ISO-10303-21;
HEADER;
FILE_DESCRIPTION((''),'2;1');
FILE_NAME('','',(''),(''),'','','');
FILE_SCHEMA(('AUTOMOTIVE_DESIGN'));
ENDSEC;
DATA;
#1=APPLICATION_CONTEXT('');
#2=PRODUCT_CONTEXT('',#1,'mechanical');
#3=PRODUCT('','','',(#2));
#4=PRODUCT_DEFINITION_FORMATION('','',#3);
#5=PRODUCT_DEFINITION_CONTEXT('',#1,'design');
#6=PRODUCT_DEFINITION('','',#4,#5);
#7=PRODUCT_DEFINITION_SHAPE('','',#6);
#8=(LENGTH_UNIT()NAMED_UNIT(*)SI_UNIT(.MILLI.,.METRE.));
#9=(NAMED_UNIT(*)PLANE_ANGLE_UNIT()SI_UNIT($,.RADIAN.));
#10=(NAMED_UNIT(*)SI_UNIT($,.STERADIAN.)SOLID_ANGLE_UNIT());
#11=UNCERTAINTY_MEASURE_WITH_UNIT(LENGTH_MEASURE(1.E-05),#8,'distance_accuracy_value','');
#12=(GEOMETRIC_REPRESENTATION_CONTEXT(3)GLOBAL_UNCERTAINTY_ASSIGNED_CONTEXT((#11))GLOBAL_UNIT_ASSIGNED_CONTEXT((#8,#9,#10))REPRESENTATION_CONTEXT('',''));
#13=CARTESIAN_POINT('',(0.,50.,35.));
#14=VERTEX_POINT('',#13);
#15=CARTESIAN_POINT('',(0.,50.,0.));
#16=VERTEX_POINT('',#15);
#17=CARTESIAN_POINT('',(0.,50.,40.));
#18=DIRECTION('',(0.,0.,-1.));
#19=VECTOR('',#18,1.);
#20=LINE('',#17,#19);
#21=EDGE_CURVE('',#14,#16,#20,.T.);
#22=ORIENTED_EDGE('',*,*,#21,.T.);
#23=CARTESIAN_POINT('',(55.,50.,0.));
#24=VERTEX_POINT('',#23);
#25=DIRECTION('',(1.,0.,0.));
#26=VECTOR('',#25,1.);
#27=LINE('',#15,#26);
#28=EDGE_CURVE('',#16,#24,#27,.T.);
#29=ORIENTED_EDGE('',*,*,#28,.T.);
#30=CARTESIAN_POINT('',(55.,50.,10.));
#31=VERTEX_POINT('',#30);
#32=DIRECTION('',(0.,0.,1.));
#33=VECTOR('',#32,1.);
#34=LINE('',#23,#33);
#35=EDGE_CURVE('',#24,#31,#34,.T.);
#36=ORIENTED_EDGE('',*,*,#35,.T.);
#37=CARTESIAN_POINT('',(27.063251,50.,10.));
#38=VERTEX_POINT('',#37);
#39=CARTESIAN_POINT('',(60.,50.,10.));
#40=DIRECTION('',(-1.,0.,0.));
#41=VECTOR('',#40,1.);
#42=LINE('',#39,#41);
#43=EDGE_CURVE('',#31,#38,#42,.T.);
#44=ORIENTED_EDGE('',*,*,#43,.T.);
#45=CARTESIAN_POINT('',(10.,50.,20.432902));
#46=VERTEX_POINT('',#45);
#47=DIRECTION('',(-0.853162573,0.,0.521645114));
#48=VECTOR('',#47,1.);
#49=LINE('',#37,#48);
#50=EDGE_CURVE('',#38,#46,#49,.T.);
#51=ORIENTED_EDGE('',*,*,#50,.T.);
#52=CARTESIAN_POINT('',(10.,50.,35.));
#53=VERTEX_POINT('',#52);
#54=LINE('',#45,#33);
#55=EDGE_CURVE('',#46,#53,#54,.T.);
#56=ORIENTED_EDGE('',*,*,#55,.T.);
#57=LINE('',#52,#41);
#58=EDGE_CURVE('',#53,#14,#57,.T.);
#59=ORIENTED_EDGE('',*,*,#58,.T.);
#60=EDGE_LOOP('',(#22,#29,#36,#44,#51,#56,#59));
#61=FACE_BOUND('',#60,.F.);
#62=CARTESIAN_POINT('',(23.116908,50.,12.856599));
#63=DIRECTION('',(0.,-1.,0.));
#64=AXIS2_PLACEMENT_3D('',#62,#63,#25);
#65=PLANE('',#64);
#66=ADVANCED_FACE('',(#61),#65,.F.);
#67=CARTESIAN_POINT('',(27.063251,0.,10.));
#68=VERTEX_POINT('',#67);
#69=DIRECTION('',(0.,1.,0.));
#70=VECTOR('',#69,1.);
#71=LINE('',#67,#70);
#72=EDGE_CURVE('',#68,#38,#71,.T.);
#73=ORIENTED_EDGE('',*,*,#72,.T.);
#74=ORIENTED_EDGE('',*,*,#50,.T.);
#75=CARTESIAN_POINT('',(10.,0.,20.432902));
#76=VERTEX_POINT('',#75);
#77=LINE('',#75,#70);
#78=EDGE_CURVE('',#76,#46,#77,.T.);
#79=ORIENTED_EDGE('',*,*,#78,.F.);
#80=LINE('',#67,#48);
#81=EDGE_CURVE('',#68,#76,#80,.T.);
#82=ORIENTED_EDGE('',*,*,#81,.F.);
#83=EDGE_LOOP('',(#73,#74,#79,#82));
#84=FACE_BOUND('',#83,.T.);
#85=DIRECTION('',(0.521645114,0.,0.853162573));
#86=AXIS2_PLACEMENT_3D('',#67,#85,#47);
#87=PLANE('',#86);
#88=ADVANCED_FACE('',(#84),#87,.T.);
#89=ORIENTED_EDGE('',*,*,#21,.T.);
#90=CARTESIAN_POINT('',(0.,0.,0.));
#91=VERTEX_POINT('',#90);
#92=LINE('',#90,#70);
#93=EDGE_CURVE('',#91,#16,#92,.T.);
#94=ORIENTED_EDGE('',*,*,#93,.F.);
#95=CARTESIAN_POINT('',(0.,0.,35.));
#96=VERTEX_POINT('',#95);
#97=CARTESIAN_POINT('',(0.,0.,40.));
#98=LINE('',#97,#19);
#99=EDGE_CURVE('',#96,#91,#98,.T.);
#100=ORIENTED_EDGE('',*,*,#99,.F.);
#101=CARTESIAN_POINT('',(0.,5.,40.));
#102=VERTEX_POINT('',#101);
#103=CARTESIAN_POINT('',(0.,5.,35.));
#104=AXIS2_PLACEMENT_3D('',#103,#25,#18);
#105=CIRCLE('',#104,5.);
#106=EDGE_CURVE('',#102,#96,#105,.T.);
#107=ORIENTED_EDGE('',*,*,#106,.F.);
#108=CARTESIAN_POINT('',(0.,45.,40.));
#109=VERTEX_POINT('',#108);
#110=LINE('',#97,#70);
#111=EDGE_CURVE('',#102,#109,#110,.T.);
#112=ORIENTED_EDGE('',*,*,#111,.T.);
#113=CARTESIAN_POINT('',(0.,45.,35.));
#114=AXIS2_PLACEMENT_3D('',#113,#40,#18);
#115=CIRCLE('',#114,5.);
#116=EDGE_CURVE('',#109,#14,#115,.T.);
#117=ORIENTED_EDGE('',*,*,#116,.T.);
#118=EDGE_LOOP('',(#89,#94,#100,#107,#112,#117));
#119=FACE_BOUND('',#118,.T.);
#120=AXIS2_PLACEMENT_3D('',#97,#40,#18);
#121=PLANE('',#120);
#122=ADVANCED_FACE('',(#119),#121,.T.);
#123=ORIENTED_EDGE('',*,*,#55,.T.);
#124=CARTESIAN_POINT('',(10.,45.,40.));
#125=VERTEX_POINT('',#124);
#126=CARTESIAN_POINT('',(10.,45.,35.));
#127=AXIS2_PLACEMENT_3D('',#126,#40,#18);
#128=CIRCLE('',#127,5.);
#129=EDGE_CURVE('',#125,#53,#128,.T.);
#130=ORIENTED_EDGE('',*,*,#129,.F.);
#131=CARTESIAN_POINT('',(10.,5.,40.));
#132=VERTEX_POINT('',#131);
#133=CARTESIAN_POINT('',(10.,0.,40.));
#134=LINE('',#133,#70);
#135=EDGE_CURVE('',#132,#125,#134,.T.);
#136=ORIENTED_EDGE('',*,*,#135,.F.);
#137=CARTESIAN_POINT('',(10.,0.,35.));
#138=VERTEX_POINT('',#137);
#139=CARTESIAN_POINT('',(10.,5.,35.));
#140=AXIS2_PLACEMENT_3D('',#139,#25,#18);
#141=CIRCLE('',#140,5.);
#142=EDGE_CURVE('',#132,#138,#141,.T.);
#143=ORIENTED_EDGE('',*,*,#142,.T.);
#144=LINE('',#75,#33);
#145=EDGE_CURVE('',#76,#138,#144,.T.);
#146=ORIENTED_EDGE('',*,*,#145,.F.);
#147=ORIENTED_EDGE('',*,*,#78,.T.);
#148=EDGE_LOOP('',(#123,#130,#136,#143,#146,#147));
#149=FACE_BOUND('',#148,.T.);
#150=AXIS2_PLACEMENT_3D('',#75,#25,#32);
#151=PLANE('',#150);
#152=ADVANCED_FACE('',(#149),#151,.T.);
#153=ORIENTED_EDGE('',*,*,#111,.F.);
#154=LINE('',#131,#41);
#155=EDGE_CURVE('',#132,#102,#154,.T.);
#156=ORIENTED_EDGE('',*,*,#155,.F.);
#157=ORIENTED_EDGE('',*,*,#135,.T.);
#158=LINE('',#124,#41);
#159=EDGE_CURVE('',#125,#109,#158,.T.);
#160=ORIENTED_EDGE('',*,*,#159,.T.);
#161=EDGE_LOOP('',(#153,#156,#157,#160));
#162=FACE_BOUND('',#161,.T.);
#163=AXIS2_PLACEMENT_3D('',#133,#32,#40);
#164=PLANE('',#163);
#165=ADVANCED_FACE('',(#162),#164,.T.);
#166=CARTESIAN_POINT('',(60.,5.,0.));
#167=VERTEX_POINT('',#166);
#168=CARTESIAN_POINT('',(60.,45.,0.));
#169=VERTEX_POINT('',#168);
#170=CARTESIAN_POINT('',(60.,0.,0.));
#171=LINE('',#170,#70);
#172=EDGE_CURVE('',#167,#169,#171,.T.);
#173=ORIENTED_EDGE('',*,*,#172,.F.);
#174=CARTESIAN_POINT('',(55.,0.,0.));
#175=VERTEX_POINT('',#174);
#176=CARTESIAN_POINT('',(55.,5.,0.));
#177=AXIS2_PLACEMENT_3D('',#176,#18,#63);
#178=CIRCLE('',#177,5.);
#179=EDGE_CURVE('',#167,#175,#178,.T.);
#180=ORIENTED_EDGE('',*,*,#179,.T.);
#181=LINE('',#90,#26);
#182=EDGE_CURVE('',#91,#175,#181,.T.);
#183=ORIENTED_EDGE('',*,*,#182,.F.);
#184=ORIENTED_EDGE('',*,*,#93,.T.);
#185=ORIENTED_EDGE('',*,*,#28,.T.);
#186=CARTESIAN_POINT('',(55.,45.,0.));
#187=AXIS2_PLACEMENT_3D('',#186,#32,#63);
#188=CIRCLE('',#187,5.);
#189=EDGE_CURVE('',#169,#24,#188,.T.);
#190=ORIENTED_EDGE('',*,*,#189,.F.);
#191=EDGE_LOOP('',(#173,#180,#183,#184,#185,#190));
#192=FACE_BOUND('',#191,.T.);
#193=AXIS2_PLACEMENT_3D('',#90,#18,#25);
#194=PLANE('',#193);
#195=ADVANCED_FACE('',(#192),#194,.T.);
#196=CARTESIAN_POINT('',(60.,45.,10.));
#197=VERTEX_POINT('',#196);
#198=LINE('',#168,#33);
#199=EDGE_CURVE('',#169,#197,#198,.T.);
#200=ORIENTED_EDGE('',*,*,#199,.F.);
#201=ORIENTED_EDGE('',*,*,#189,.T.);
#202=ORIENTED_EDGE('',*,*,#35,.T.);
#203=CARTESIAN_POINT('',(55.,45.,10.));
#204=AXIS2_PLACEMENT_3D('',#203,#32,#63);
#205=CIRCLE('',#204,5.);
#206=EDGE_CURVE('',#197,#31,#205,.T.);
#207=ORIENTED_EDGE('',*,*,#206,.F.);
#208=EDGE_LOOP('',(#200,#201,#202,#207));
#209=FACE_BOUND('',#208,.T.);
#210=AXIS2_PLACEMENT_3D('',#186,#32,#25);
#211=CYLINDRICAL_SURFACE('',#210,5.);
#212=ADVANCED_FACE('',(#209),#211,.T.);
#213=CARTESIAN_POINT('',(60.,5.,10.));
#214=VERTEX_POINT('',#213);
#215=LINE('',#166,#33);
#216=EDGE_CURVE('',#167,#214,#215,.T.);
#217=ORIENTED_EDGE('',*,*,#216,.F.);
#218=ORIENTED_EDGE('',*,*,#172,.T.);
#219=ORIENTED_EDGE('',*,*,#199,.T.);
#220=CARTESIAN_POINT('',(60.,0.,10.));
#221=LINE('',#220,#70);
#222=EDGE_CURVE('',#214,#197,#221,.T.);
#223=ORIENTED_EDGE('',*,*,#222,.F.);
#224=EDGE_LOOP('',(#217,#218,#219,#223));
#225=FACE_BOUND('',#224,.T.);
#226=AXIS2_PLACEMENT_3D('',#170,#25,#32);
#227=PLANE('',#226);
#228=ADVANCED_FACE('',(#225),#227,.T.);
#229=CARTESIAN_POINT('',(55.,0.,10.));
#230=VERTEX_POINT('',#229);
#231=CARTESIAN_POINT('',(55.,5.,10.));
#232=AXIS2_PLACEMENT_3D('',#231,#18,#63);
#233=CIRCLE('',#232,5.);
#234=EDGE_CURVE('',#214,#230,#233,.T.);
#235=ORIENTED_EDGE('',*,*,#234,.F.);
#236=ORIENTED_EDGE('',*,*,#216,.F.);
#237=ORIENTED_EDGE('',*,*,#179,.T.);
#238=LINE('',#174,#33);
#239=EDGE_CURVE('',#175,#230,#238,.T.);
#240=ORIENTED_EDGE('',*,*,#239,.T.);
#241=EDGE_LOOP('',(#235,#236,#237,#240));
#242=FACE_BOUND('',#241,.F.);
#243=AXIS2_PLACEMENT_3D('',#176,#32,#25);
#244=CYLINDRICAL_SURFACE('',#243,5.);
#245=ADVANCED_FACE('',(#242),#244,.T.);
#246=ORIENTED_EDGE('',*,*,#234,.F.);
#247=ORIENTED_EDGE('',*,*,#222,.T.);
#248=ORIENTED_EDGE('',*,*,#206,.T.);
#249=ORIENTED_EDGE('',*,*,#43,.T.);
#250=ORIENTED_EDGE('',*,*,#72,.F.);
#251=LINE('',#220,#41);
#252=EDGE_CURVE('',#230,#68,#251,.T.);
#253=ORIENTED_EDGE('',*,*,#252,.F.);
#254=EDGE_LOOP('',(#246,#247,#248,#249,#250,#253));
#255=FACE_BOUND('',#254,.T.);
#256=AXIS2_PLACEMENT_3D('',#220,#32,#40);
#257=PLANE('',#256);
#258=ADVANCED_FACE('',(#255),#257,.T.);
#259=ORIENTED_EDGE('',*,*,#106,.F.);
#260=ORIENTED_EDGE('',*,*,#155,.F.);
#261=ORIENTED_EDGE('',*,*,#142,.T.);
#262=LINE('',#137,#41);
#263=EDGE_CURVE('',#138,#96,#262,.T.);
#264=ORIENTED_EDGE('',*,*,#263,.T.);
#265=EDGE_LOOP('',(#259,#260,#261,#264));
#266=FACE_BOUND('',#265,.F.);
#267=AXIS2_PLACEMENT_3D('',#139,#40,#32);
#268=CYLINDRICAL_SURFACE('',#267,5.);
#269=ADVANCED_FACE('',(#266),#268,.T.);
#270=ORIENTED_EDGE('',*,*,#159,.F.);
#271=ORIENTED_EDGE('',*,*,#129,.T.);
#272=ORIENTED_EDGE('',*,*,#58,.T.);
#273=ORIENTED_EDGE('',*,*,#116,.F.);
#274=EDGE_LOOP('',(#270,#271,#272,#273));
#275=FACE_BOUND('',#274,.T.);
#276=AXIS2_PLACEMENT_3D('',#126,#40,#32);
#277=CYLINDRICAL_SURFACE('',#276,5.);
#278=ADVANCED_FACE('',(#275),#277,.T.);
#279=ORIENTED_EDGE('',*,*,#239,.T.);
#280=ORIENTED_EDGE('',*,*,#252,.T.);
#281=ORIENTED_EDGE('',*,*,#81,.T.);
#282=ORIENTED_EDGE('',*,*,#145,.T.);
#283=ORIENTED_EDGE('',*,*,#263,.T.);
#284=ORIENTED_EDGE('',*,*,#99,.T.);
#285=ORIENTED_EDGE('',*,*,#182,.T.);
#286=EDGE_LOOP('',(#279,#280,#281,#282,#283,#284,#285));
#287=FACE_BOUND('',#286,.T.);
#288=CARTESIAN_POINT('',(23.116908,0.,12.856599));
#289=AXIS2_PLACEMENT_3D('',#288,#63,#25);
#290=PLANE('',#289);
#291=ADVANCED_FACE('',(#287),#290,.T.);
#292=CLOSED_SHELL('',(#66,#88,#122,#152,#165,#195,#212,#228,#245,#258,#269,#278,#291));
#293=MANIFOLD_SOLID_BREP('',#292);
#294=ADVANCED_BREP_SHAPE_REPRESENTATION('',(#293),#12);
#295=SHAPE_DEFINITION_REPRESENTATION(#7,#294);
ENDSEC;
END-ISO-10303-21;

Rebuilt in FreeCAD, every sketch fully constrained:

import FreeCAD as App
import Part
import Sketcher

V = App.Vector
Q = App.Units.Quantity


def edges_at(feature, points):
    """Names of the edges that pass closest to the given points."""
    edges = feature.Shape.Edges
    near = lambda p: min(range(len(edges)), key=lambda i: edges[i].distToShape(Part.Vertex(*p))[0])
    return sorted({f"Edge{near(p) + 1}" for p in points})


def add_polygon(sketch, points):
    """Adds a closed chain of lines whose ends are joined by coincident constraints."""
    first, n = sketch.GeometryCount, len(points)
    for a, b in zip(points, points[1:] + points[:1]):
        sketch.addGeometry(Part.LineSegment(App.Vector(*a, 0), App.Vector(*b, 0)), False)
    for i in range(n):
        sketch.addConstraint(Sketcher.Constraint("Coincident", first + i, 2, first + (i + 1) % n, 1))

doc = App.newDocument("Part")
body = doc.addObject("PartDesign::Body", "Body")

sketch1 = body.newObject("Sketcher::SketchObject", "Sketch")
sketch1.AttachmentSupport = (doc.getObject("XZ_Plane"), [""])
sketch1.MapMode = "FlatFace"
add_polygon(sketch1, [(0, 40), (0, 0), (60, 0), (60, 10), (27, 10), (10, 20), (10, 40)])
sketch1.addConstraint(Sketcher.Constraint("Vertical", 0))
sketch1.addConstraint(Sketcher.Constraint("Horizontal", 1))
sketch1.addConstraint(Sketcher.Constraint("Vertical", 2))
sketch1.addConstraint(Sketcher.Constraint("Horizontal", 3))
sketch1.addConstraint(Sketcher.Constraint("Vertical", 5))
sketch1.addConstraint(Sketcher.Constraint("Horizontal", 6))
sketch1.addConstraint(Sketcher.Constraint("Coincident", 0, 2, -1, 1))
sketch1.addConstraint(Sketcher.Constraint("Equal", 6, 2))
sketch1.addConstraint(Sketcher.Constraint("DistanceX", 1, 1, 1, 2, Q("60 mm")))
sketch1.addConstraint(Sketcher.Constraint("DistanceX", 6, 2, 6, 1, Q("10 mm")))
sketch1.addConstraint(Sketcher.Constraint("DistanceY", 0, 2, 0, 1, Q("40 mm")))
sketch1.addConstraint(Sketcher.Constraint("Distance", 4, Q("19.999999 mm")))
sketch1.addConstraint(Sketcher.Constraint("DistanceY", 5, 1, 5, 2, Q("19.567098 mm")))
pad1 = body.newObject("PartDesign::Pad", "Pad")
pad1.Profile = sketch1
pad1.Length = 50
pad1.Reversed = True
doc.recompute()

fillet = body.newObject("PartDesign::Fillet", "Fillet")
fillet.Base = (pad1, edges_at(pad1, [
    (5, 0, 40),
    (5, 50, 40),
    (60, 0, 5),
    (60, 50, 5),
]))
fillet.Radius = 5

doc.recompute()
